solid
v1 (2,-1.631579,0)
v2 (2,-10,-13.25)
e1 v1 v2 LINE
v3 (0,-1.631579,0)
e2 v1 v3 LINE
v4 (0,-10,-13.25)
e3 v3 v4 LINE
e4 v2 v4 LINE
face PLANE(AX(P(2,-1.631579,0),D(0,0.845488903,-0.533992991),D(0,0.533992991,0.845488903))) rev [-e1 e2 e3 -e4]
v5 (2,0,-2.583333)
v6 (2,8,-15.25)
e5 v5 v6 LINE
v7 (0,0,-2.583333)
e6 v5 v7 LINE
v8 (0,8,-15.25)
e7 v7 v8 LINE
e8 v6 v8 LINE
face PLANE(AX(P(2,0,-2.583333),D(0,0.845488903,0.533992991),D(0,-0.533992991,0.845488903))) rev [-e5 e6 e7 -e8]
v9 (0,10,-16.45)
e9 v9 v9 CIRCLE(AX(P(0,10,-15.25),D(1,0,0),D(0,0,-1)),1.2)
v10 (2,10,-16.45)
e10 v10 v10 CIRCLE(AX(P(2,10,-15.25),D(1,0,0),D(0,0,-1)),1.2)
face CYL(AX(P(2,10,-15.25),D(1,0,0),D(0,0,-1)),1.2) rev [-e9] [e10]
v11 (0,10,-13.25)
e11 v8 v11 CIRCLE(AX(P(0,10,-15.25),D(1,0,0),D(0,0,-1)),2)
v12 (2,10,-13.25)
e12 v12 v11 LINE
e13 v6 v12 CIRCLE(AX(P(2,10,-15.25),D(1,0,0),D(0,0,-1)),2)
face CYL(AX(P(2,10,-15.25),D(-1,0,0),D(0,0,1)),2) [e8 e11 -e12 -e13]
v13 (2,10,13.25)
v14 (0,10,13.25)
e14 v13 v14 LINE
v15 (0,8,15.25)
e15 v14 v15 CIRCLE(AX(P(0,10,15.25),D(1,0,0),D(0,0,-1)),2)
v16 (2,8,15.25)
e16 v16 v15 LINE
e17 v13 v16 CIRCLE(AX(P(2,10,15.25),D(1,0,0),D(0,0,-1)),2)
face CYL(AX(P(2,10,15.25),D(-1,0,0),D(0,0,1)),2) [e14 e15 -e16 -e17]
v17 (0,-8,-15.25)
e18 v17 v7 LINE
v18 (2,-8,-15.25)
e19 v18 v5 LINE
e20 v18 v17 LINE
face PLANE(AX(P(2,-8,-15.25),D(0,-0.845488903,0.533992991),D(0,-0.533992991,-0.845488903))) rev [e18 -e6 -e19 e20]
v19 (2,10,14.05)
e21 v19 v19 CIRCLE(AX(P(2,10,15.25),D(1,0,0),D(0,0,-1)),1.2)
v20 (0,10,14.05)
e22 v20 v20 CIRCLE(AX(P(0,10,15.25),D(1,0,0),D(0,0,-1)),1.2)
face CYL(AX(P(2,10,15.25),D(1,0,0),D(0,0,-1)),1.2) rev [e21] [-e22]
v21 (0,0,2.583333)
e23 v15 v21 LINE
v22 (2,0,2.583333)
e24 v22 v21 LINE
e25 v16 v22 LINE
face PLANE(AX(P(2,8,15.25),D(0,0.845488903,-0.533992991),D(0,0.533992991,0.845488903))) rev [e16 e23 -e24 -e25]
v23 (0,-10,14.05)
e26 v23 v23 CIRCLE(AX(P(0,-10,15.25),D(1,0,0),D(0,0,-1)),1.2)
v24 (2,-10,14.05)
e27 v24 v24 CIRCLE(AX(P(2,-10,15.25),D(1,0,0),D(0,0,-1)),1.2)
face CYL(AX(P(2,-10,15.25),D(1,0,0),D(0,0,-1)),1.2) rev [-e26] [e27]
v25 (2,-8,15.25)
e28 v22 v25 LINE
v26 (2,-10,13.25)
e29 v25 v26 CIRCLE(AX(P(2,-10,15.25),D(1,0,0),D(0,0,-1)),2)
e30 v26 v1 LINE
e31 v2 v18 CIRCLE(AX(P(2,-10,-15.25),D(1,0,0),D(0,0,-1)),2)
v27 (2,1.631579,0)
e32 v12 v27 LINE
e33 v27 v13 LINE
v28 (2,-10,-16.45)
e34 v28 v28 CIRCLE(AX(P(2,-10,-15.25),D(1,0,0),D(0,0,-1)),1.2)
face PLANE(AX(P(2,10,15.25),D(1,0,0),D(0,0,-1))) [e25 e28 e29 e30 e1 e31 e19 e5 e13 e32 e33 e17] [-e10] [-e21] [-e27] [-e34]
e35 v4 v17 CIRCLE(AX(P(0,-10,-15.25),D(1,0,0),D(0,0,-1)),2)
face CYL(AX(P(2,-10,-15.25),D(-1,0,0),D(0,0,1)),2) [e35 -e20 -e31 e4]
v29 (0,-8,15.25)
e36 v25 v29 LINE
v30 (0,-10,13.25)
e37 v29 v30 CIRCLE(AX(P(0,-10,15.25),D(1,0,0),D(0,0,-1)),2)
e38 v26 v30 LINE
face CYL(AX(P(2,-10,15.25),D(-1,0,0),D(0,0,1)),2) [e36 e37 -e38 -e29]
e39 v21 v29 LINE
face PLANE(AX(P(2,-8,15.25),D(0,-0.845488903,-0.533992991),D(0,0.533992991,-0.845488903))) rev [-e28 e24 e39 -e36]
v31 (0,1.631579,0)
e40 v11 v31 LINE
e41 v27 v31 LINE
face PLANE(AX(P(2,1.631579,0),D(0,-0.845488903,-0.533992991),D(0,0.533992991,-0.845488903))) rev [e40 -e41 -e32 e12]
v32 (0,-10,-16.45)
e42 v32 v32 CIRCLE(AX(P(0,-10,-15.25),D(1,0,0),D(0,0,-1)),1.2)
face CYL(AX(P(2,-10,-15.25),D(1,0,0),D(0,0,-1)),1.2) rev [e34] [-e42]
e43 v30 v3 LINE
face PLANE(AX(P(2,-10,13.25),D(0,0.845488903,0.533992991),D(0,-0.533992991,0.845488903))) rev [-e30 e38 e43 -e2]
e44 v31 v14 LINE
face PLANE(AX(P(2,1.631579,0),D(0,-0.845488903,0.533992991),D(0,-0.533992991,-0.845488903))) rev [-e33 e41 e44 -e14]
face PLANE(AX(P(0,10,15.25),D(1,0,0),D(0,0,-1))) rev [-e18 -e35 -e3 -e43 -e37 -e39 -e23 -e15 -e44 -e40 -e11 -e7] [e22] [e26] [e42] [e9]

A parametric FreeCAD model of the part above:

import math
import FreeCAD as App
import Part
import Sketcher
from FreeCAD import Vector

doc = App.newDocument("Part")
body = doc.addObject("PartDesign::Body", "Body")

# Sketch on YZ plane
sketch1 = body.newObject("Sketcher::SketchObject", "Sketch")
sketch1.AttachmentSupport = (doc.getObject("YZ_Plane"), [""])
sketch1.MapMode = "FlatFace"
sketch1.addGeometry(Part.LineSegment(Vector(-10, 13.2, 0), Vector(-1.6, 0, 0)), False)
sketch1.addGeometry(Part.LineSegment(Vector(-1.6, 0, 0), Vector(-10, -13.2, 0)), False)
sketch1.addGeometry(Part.ArcOfCircle(Part.Circle(Vector(-10, -15.2, 0), Vector(0, 0, 1), 2), math.radians(90), math.radians(360)), False)
sketch1.addGeometry(Part.LineSegment(Vector(-8, -15.2, 0), Vector(0, -2.6, 0)), False)
sketch1.addGeometry(Part.LineSegment(Vector(0, -2.6, 0), Vector(8, -15.2, 0)), False)
sketch1.addGeometry(Part.ArcOfCircle(Part.Circle(Vector(10, -15.2, 0), Vector(0, 0, 1), 2), math.radians(180), math.radians(450)), False)
sketch1.addGeometry(Part.LineSegment(Vector(10, -13.2, 0), Vector(1.6, 0, 0)), False)
sketch1.addGeometry(Part.LineSegment(Vector(1.6, 0, 0), Vector(10, 13.2, 0)), False)
sketch1.addGeometry(Part.ArcOfCircle(Part.Circle(Vector(10, 15.2, 0), Vector(0, 0, 1), 2), math.radians(-90), math.radians(180)), False)
sketch1.addGeometry(Part.LineSegment(Vector(8, 15.2, 0), Vector(0, 2.6, 0)), False)
sketch1.addGeometry(Part.LineSegment(Vector(0, 2.6, 0), Vector(-8, 15.2, 0)), False)
sketch1.addGeometry(Part.ArcOfCircle(Part.Circle(Vector(-10, 15.2, 0), Vector(0, 0, 1), 2), math.radians(0), math.radians(270)), False)
sketch1.addConstraint(Sketcher.Constraint("Coincident", 0, 2, 1, 1))
sketch1.addConstraint(Sketcher.Constraint("Coincident", 1, 2, 2, 1))
sketch1.addConstraint(Sketcher.Constraint("Coincident", 2, 2, 3, 1))
sketch1.addConstraint(Sketcher.Constraint("Coincident", 3, 2, 4, 1))
sketch1.addConstraint(Sketcher.Constraint("Coincident", 4, 2, 5, 1))
sketch1.addConstraint(Sketcher.Constraint("Coincident", 5, 2, 6, 1))
sketch1.addConstraint(Sketcher.Constraint("Coincident", 6, 2, 7, 1))
sketch1.addConstraint(Sketcher.Constraint("Coincident", 7, 2, 8, 1))
sketch1.addConstraint(Sketcher.Constraint("Coincident", 8, 2, 9, 1))
sketch1.addConstraint(Sketcher.Constraint("Coincident", 9, 2, 10, 1))
sketch1.addConstraint(Sketcher.Constraint("Coincident", 10, 2, 11, 1))
sketch1.addConstraint(Sketcher.Constraint("Coincident", 11, 2, 0, 1))
sketch1.addConstraint(Sketcher.Constraint("Equal", 2, 5))
sketch1.addConstraint(Sketcher.Constraint("Equal", 5, 8))
sketch1.addConstraint(Sketcher.Constraint("Equal", 8, 11))
sketch1.addConstraint(Sketcher.Constraint("Symmetric", 2, 3, 8, 3, -1, 1))
sketch1.addConstraint(Sketcher.Constraint("Symmetric", 5, 3, 11, 3, -1, 1))
sketch1.addConstraint(Sketcher.Constraint("Symmetric", 0, 2, 6, 2, -1, 1))
sketch1.addConstraint(Sketcher.Constraint("Symmetric", 3, 2, 9, 2, -1, 1))
sketch1.addConstraint(Sketcher.Constraint("Symmetric", 2, 3, 5, 3, -2))
sketch1.addConstraint(Sketcher.Constraint("PointOnObject", 0, 2, -1))
sketch1.addConstraint(Sketcher.Constraint("PointOnObject", 3, 2, -2))
sketch1.addConstraint(Sketcher.Constraint("Parallel", 1, 3))
sketch1.addConstraint(Sketcher.Constraint("Parallel", 0, 4))
sketch1.addConstraint(Sketcher.Constraint("Parallel", 4, 6))
sketch1.addConstraint(Sketcher.Constraint("Parallel", 3, 7))
sketch1.addConstraint(Sketcher.Constraint("Parallel", 7, 9))
sketch1.addConstraint(Sketcher.Constraint("Parallel", 6, 10))
sketch1.addConstraint(Sketcher.Constraint("Horizontal", 5, 3, 2, 2))
sketch1.addConstraint(Sketcher.Constraint("Horizontal", 2, 2, 4, 2))
sketch1.addConstraint(Sketcher.Constraint("Vertical", 11, 3, 1, 2))
sketch1.addConstraint(Sketcher.Constraint("Radius", 2, 2.0))
sketch1.addConstraint(Sketcher.Constraint("DistanceX", 2, 3, -1, 1, 10.0))
sketch1.addConstraint(Sketcher.Constraint("DistanceY", 5, 3, 8, 3, 30.5))
sketch1.addConstraint(Sketcher.Constraint("Distance", 3, 14.98147))
pad1 = body.newObject("PartDesign::Pad", "Pad")
pad1.Profile = sketch1
pad1.Length = 2

# Sketch on YZ plane
sketch2 = body.newObject("Sketcher::SketchObject", "Sketch001")
sketch2.AttachmentSupport = (doc.getObject("YZ_Plane"), [""])
sketch2.MapMode = "FlatFace"
sketch2.AttachmentOffset = App.Placement(Vector(0, 0, 2), App.Rotation())
sketch2.addGeometry(Part.Circle(Vector(10, -15.2, 0), Vector(0, 0, 1), 1.2), False)
sketch2.addGeometry(Part.Circle(Vector(-10, -15.2, 0), Vector(0, 0, 1), 1.2), False)
sketch2.addGeometry(Part.Circle(Vector(10, 15.2, 0), Vector(0, 0, 1), 1.2), False)
sketch2.addGeometry(Part.Circle(Vector(-10, 15.2, 0), Vector(0, 0, 1), 1.2), False)
sketch2.addConstraint(Sketcher.Constraint("Equal", 0, 1))
sketch2.addConstraint(Sketcher.Constraint("Equal", 1, 2))
sketch2.addConstraint(Sketcher.Constraint("Equal", 2, 3))
sketch2.addConstraint(Sketcher.Constraint("Symmetric", 1, 3, 2, 3, -1, 1))
sketch2.addConstraint(Sketcher.Constraint("Symmetric", 0, 3, 3, 3, -1, 1))
sketch2.addConstraint(Sketcher.Constraint("Symmetric", 0, 3, 1, 3, -2))
sketch2.addConstraint(Sketcher.Constraint("Diameter", 0, 2.4))
sketch2.addConstraint(Sketcher.Constraint("DistanceX", -1, 1, 0, 3, 10.0))
sketch2.addConstraint(Sketcher.Constraint("DistanceY", 0, 3, 2, 3, 30.5))
doc.recompute()
hole = body.newObject("PartDesign::Hole", "Hole")
hole.Profile = sketch2
hole.ThreadType = "None"
hole.Diameter = 2.4
hole.DepthType = "ThroughAll"

doc.recompute()
